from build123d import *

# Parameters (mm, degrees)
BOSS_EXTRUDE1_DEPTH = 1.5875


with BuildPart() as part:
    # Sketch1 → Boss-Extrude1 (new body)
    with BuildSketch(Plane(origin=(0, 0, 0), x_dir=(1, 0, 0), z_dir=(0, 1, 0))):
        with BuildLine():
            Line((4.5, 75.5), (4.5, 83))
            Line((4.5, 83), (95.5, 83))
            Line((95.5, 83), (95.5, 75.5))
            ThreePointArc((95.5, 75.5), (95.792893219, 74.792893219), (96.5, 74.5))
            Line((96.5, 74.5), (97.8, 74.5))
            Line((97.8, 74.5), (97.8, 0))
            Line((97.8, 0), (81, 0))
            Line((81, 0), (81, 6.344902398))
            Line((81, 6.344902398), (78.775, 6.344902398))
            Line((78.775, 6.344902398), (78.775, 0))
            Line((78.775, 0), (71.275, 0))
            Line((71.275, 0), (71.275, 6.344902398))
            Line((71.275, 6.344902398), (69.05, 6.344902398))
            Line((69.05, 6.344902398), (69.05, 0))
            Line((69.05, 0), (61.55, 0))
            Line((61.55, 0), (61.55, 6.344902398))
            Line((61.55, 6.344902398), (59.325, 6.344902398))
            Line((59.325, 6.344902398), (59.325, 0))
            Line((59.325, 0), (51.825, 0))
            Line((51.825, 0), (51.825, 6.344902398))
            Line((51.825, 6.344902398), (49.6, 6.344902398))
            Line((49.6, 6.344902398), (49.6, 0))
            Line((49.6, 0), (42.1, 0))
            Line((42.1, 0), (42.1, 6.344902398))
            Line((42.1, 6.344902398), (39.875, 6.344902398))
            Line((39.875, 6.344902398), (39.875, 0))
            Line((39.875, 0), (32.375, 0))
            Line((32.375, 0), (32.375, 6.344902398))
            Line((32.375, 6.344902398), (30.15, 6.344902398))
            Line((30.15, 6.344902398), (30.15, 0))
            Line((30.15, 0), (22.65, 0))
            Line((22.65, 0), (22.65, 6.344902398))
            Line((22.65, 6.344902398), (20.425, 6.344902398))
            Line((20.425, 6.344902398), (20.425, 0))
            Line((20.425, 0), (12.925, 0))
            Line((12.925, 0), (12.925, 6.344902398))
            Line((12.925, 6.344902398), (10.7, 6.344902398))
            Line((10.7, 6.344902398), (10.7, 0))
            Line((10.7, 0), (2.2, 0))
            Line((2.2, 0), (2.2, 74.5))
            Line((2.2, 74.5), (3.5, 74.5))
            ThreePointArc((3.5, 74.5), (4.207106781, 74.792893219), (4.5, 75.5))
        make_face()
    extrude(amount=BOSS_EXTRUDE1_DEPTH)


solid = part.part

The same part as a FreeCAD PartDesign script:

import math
import FreeCAD as App
import Part
import Sketcher

doc = App.newDocument("Part")
body = doc.addObject("PartDesign::Body", "Body")

sketch1 = body.newObject("Sketcher::SketchObject", "Sketch")
sketch1.AttachmentSupport = (doc.getObject("XZ_Plane"), [""])
sketch1.MapMode = "FlatFace"
sketch1.addGeometry(Part.LineSegment(App.Vector(4.5, -83, 0), App.Vector(4.5, -75.5, 0)), False)
sketch1.addGeometry(Part.ArcOfCircle(Part.Circle(App.Vector(3.5, -75.5, 0), App.Vector(0, 0, 1), 1), math.radians(0), math.radians(90)), False)
sketch1.addGeometry(Part.LineSegment(App.Vector(3.5, -74.5, 0), App.Vector(2.2, -74.5, 0)), False)
sketch1.addGeometry(Part.LineSegment(App.Vector(2.2, -74.5, 0), App.Vector(2.2, 0, 0)), False)
sketch1.addGeometry(Part.LineSegment(App.Vector(2.2, 0, 0), App.Vector(10.7, 0, 0)), False)
sketch1.addGeometry(Part.LineSegment(App.Vector(10.7, 0, 0), App.Vector(10.7, -6.3, 0)), False)
sketch1.addGeometry(Part.LineSegment(App.Vector(10.7, -6.3, 0), App.Vector(12.9, -6.3, 0)), False)
sketch1.addGeometry(Part.LineSegment(App.Vector(12.9, -6.3, 0), App.Vector(12.9, 0, 0)), False)
sketch1.addGeometry(Part.LineSegment(App.Vector(12.9, 0, 0), App.Vector(20.4, 0, 0)), False)
sketch1.addGeometry(Part.LineSegment(App.Vector(20.4, 0, 0), App.Vector(20.4, -6.3, 0)), False)
sketch1.addGeometry(Part.LineSegment(App.Vector(20.4, -6.3, 0), App.Vector(22.6, -6.3, 0)), False)
sketch1.addGeometry(Part.LineSegment(App.Vector(22.6, -6.3, 0), App.Vector(22.6, 0, 0)), False)
sketch1.addGeometry(Part.LineSegment(App.Vector(22.6, 0, 0), App.Vector(30.1, 0, 0)), False)
sketch1.addGeometry(Part.LineSegment(App.Vector(30.1, 0, 0), App.Vector(30.1, -6.3, 0)), False)
sketch1.addGeometry(Part.LineSegment(App.Vector(30.1, -6.3, 0), App.Vector(32.4, -6.3, 0)), False)
sketch1.addGeometry(Part.LineSegment(App.Vector(32.4, -6.3, 0), App.Vector(32.4, 0, 0)), False)
sketch1.addGeometry(Part.LineSegment(App.Vector(32.4, 0, 0), App.Vector(39.9, 0, 0)), False)
sketch1.addGeometry(Part.LineSegment(App.Vector(39.9, 0, 0), App.Vector(39.9, -6.3, 0)), False)
sketch1.addGeometry(Part.LineSegment(App.Vector(39.9, -6.3, 0), App.Vector(42.1, -6.3, 0)), False)
sketch1.addGeometry(Part.LineSegment(App.Vector(42.1, -6.3, 0), App.Vector(42.1, 0, 0)), False)
sketch1.addGeometry(Part.LineSegment(App.Vector(42.1, 0, 0), App.Vector(49.6, 0, 0)), False)
sketch1.addGeometry(Part.LineSegment(App.Vector(49.6, 0, 0), App.Vector(49.6, -6.3, 0)), False)
sketch1.addGeometry(Part.LineSegment(App.Vector(49.6, -6.3, 0), App.Vector(51.8, -6.3, 0)), False)
sketch1.addGeometry(Part.LineSegment(App.Vector(51.8, -6.3, 0), App.Vector(51.8, 0, 0)), False)
sketch1.addGeometry(Part.LineSegment(App.Vector(51.8, 0, 0), App.Vector(59.3, 0, 0)), False)
sketch1.addGeometry(Part.LineSegment(App.Vector(59.3, 0, 0), App.Vector(59.3, -6.3, 0)), False)
sketch1.addGeometry(Part.LineSegment(App.Vector(59.3, -6.3, 0), App.Vector(61.5, -6.3, 0)), False)
sketch1.addGeometry(Part.LineSegment(App.Vector(61.5, -6.3, 0), App.Vector(61.5, 0, 0)), False)
sketch1.addGeometry(Part.LineSegment(App.Vector(61.5, 0, 0), App.Vector(69, 0, 0)), False)
sketch1.addGeometry(Part.LineSegment(App.Vector(69, 0, 0), App.Vector(69, -6.3, 0)), False)
sketch1.addGeometry(Part.LineSegment(App.Vector(69, -6.3, 0), App.Vector(71.3, -6.3, 0)), False)
sketch1.addGeometry(Part.LineSegment(App.Vector(71.3, -6.3, 0), App.Vector(71.3, 0, 0)), False)
sketch1.addGeometry(Part.LineSegment(App.Vector(71.3, 0, 0), App.Vector(78.8, 0, 0)), False)
sketch1.addGeometry(Part.LineSegment(App.Vector(78.8, 0, 0), App.Vector(78.8, -6.3, 0)), False)
sketch1.addGeometry(Part.LineSegment(App.Vector(78.8, -6.3, 0), App.Vector(81, -6.3, 0)), False)
sketch1.addGeometry(Part.LineSegment(App.Vector(81, -6.3, 0), App.Vector(81, 0, 0)), False)
sketch1.addGeometry(Part.LineSegment(App.Vector(81, 0, 0), App.Vector(97.8, 0, 0)), False)
sketch1.addGeometry(Part.LineSegment(App.Vector(97.8, 0, 0), App.Vector(97.8, -74.5, 0)), False)
sketch1.addGeometry(Part.LineSegment(App.Vector(97.8, -74.5, 0), App.Vector(96.5, -74.5, 0)), False)
sketch1.addGeometry(Part.ArcOfCircle(Part.Circle(App.Vector(96.5, -75.5, 0), App.Vector(0, 0, 1), 1), math.radians(90), math.radians(180)), False)
sketch1.addGeometry(Part.LineSegment(App.Vector(95.5, -75.5, 0), App.Vector(95.5, -83, 0)), False)
sketch1.addGeometry(Part.LineSegment(App.Vector(95.5, -83, 0), App.Vector(4.5, -83, 0)), False)
sketch1.addConstraint(Sketcher.Constraint("Tangent", 0, 2, 1, 1))
sketch1.addConstraint(Sketcher.Constraint("Tangent", 1, 2, 2, 1))
sketch1.addConstraint(Sketcher.Constraint("Coincident", 2, 2, 3, 1))
sketch1.addConstraint(Sketcher.Constraint("Coincident", 3, 2, 4, 1))
sketch1.addConstraint(Sketcher.Constraint("Coincident", 4, 2, 5, 1))
sketch1.addConstraint(Sketcher.Constraint("Coincident", 5, 2, 6, 1))
sketch1.addConstraint(Sketcher.Constraint("Coincident", 6, 2, 7, 1))
sketch1.addConstraint(Sketcher.Constraint("Coincident", 7, 2, 8, 1))
sketch1.addConstraint(Sketcher.Constraint("Coincident", 8, 2, 9, 1))
sketch1.addConstraint(Sketcher.Constraint("Coincident", 9, 2, 10, 1))
sketch1.addConstraint(Sketcher.Constraint("Coincident", 10, 2, 11, 1))
sketch1.addConstraint(Sketcher.Constraint("Coincident", 11, 2, 12, 1))
sketch1.addConstraint(Sketcher.Constraint("Coincident", 12, 2, 13, 1))
sketch1.addConstraint(Sketcher.Constraint("Coincident", 13, 2, 14, 1))
sketch1.addConstraint(Sketcher.Constraint("Coincident", 14, 2, 15, 1))
sketch1.addConstraint(Sketcher.Constraint("Coincident", 15, 2, 16, 1))
sketch1.addConstraint(Sketcher.Constraint("Coincident", 16, 2, 17, 1))
sketch1.addConstraint(Sketcher.Constraint("Coincident", 17, 2, 18, 1))
sketch1.addConstraint(Sketcher.Constraint("Coincident", 18, 2, 19, 1))
sketch1.addConstraint(Sketcher.Constraint("Coincident", 19, 2, 20, 1))
sketch1.addConstraint(Sketcher.Constraint("Coincident", 20, 2, 21, 1))
sketch1.addConstraint(Sketcher.Constraint("Coincident", 21, 2, 22, 1))
sketch1.addConstraint(Sketcher.Constraint("Coincident", 22, 2, 23, 1))
sketch1.addConstraint(Sketcher.Constraint("Coincident", 23, 2, 24, 1))
sketch1.addConstraint(Sketcher.Constraint("Coincident", 24, 2, 25, 1))
sketch1.addConstraint(Sketcher.Constraint("Coincident", 25, 2, 26, 1))
sketch1.addConstraint(Sketcher.Constraint("Coincident", 26, 2, 27, 1))
sketch1.addConstraint(Sketcher.Constraint("Coincident", 27, 2, 28, 1))
sketch1.addConstraint(Sketcher.Constraint("Coincident", 28, 2, 29, 1))
sketch1.addConstraint(Sketcher.Constraint("Coincident", 29, 2, 30, 1))
sketch1.addConstraint(Sketcher.Constraint("Coincident", 30, 2, 31, 1))
sketch1.addConstraint(Sketcher.Constraint("Coincident", 31, 2, 32, 1))
sketch1.addConstraint(Sketcher.Constraint("Coincident", 32, 2, 33, 1))
sketch1.addConstraint(Sketcher.Constraint("Coincident", 33, 2, 34, 1))
sketch1.addConstraint(Sketcher.Constraint("Coincident", 34, 2, 35, 1))
sketch1.addConstraint(Sketcher.Constraint("Coincident", 35, 2, 36, 1))
sketch1.addConstraint(Sketcher.Constraint("Coincident", 36, 2, 37, 1))
sketch1.addConstraint(Sketcher.Constraint("Coincident", 37, 2, 38, 1))
sketch1.addConstraint(Sketcher.Constraint("Tangent", 38, 2, 39, 1))
sketch1.addConstraint(Sketcher.Constraint("Tangent", 39, 2, 40, 1))
sketch1.addConstraint(Sketcher.Constraint("Coincident", 40, 2, 41, 1))
sketch1.addConstraint(Sketcher.Constraint("Coincident", 41, 2, 0, 1))
sketch1.addConstraint(Sketcher.Constraint("Vertical", 0))
sketch1.addConstraint(Sketcher.Constraint("Horizontal", 2))
sketch1.addConstraint(Sketcher.Constraint("Vertical", 3))
sketch1.addConstraint(Sketcher.Constraint("Horizontal", 4))
sketch1.addConstraint(Sketcher.Constraint("Vertical", 5))
sketch1.addConstraint(Sketcher.Constraint("Horizontal", 6))
sketch1.addConstraint(Sketcher.Constraint("Vertical", 7))
sketch1.addConstraint(Sketcher.Constraint("Horizontal", 8))
sketch1.addConstraint(Sketcher.Constraint("Vertical", 9))
sketch1.addConstraint(Sketcher.Constraint("Horizontal", 10))
sketch1.addConstraint(Sketcher.Constraint("Vertical", 11))
sketch1.addConstraint(Sketcher.Constraint("Horizontal", 12))
sketch1.addConstraint(Sketcher.Constraint("Vertical", 13))
sketch1.addConstraint(Sketcher.Constraint("Horizontal", 14))
sketch1.addConstraint(Sketcher.Constraint("Vertical", 15))
sketch1.addConstraint(Sketcher.Constraint("Horizontal", 16))
sketch1.addConstraint(Sketcher.Constraint("Vertical", 17))
sketch1.addConstraint(Sketcher.Constraint("Horizontal", 18))
sketch1.addConstraint(Sketcher.Constraint("Vertical", 19))
sketch1.addConstraint(Sketcher.Constraint("Horizontal", 20))
sketch1.addConstraint(Sketcher.Constraint("Vertical", 21))
sketch1.addConstraint(Sketcher.Constraint("Horizontal", 22))
sketch1.addConstraint(Sketcher.Constraint("Vertical", 23))
sketch1.addConstraint(Sketcher.Constraint("Horizontal", 24))
sketch1.addConstraint(Sketcher.Constraint("Vertical", 25))
sketch1.addConstraint(Sketcher.Constraint("Horizontal", 26))
sketch1.addConstraint(Sketcher.Constraint("Vertical", 27))
sketch1.addConstraint(Sketcher.Constraint("Horizontal", 28))
sketch1.addConstraint(Sketcher.Constraint("Vertical", 29))
sketch1.addConstraint(Sketcher.Constraint("Horizontal", 30))
sketch1.addConstraint(Sketcher.Constraint("Vertical", 31))
sketch1.addConstraint(Sketcher.Constraint("Horizontal", 32))
sketch1.addConstraint(Sketcher.Constraint("Vertical", 33))
sketch1.addConstraint(Sketcher.Constraint("Horizontal", 34))
sketch1.addConstraint(Sketcher.Constraint("Vertical", 35))
sketch1.addConstraint(Sketcher.Constraint("Horizontal", 36))
sketch1.addConstraint(Sketcher.Constraint("Vertical", 37))
sketch1.addConstraint(Sketcher.Constraint("Horizontal", 38))
sketch1.addConstraint(Sketcher.Constraint("Vertical", 40))
sketch1.addConstraint(Sketcher.Constraint("Horizontal", 41))
sketch1.addConstraint(Sketcher.Constraint("Equal", 1, 39))
sketch1.addConstraint(Sketcher.Constraint("PointOnObject", 3, 2, -1))
sketch1.addConstraint(Sketcher.Constraint("PointOnObject", 7, 2, -1))
sketch1.addConstraint(Sketcher.Constraint("PointOnObject", 11, 2, -1))
sketch1.addConstraint(Sketcher.Constraint("PointOnObject", 15, 2, -1))
sketch1.addConstraint(Sketcher.Constraint("PointOnObject", 19, 2, -1))
sketch1.addConstraint(Sketcher.Constraint("PointOnObject", 23, 2, -1))
sketch1.addConstraint(Sketcher.Constraint("PointOnObject", 27, 2, -1))
sketch1.addConstraint(Sketcher.Constraint("PointOnObject", 31, 2, -1))
sketch1.addConstraint(Sketcher.Constraint("PointOnObject", 35, 2, -1))
sketch1.addConstraint(Sketcher.Constraint("Horizontal", 1, 3, 39, 3))
sketch1.addConstraint(Sketcher.Constraint("Horizontal", 6, 2, 9, 2))
sketch1.addConstraint(Sketcher.Constraint("Horizontal", 10, 2, 13, 2))
sketch1.addConstraint(Sketcher.Constraint("Horizontal", 14, 2, 17, 2))
sketch1.addConstraint(Sketcher.Constraint("Horizontal", 18, 2, 21, 2))
sketch1.addConstraint(Sketcher.Constraint("Horizontal", 22, 2, 25, 2))
sketch1.addConstraint(Sketcher.Constraint("Horizontal", 26, 2, 29, 2))
sketch1.addConstraint(Sketcher.Constraint("Horizontal", 30, 2, 33, 2))
sketch1.addConstraint(Sketcher.Constraint("Equal", 6, 10))
sketch1.addConstraint(Sketcher.Constraint("Equal", 8, 12))
sketch1.addConstraint(Sketcher.Constraint("Equal", 10, 14))
sketch1.addConstraint(Sketcher.Constraint("Equal", 12, 16))
sketch1.addConstraint(Sketcher.Constraint("Equal", 14, 18))
sketch1.addConstraint(Sketcher.Constraint("Equal", 16, 20))
sketch1.addConstraint(Sketcher.Constraint("Equal", 18, 22))
sketch1.addConstraint(Sketcher.Constraint("Equal", 20, 24))
sketch1.addConstraint(Sketcher.Constraint("Equal", 22, 26))
sketch1.addConstraint(Sketcher.Constraint("Equal", 24, 28))
sketch1.addConstraint(Sketcher.Constraint("Equal", 26, 30))
sketch1.addConstraint(Sketcher.Constraint("Equal", 28, 32))
sketch1.addConstraint(Sketcher.Constraint("Equal", 30, 34))
sketch1.addConstraint(Sketcher.Constraint("Equal", 2, 38))
sketch1.addConstraint(Sketcher.Constraint("Equal", 32, 0))
sketch1.addConstraint(Sketcher.Constraint("Radius", 1, 1.0))
sketch1.addConstraint(Sketcher.Constraint("DistanceX", 41, 2, 41, 1, 91.0))
sketch1.addConstraint(Sketcher.Constraint("DistanceX", 2, 2, 2, 1, 1.3))
sketch1.addConstraint(Sketcher.Constraint("DistanceX", 4, 1, 4, 2, 8.5))
sketch1.addConstraint(Sketcher.Constraint("DistanceX", 8, 1, 8, 2, 7.5))
sketch1.addConstraint(Sketcher.Constraint("DistanceX", 36, 1, 36, 2, 16.8))
sketch1.addConstraint(Sketcher.Constraint("DistanceY", 3, 1, 3, 2, 74.5))
sketch1.addConstraint(Sketcher.Constraint("DistanceX", -1, 1, 34, 2, 81.0))
sketch1.addConstraint(Sketcher.Constraint("DistanceY", 5, 2, 5, 1, 6.344902))
pad1 = body.newObject("PartDesign::Pad", "Pad")
pad1.Profile = sketch1
pad1.Length = 1.5875
pad1.Reversed = True

doc.recompute()
